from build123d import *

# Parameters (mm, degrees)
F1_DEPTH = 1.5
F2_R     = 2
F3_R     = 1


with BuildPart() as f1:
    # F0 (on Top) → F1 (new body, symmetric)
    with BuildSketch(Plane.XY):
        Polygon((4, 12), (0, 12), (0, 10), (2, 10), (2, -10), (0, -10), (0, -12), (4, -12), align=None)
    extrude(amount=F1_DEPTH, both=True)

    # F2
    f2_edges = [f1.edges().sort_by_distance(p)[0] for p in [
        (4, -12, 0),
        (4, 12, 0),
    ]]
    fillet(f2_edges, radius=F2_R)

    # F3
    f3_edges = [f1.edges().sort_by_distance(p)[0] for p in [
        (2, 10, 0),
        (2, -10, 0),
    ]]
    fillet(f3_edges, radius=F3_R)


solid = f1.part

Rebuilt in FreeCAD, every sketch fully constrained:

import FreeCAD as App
import Part
import Sketcher
from FreeCAD import Vector


def edges_at(feature, points):
    """Names of the edges that pass closest to the given points."""
    edges = feature.Shape.Edges
    near = lambda p: min(range(len(edges)), key=lambda i: edges[i].distToShape(Part.Vertex(*p))[0])
    return sorted({f"Edge{near(p) + 1}" for p in points})

doc = App.newDocument("Part")
body = doc.addObject("PartDesign::Body", "Body")

# Sketch on XY plane
sketch1 = body.newObject("Sketcher::SketchObject", "Sketch")
sketch1.AttachmentSupport = (doc.getObject("XY_Plane"), [""])
sketch1.MapMode = "FlatFace"
sketch1.addGeometry(Part.LineSegment(Vector(4, 12, 0), Vector(0, 12, 0)), False)
sketch1.addGeometry(Part.LineSegment(Vector(0, 12, 0), Vector(0, 10, 0)), False)
sketch1.addGeometry(Part.LineSegment(Vector(0, 10, 0), Vector(2, 10, 0)), False)
sketch1.addGeometry(Part.LineSegment(Vector(2, 10, 0), Vector(2, -10, 0)), False)
sketch1.addGeometry(Part.LineSegment(Vector(2, -10, 0), Vector(0, -10, 0)), False)
sketch1.addGeometry(Part.LineSegment(Vector(0, -10, 0), Vector(0, -12, 0)), False)
sketch1.addGeometry(Part.LineSegment(Vector(0, -12, 0), Vector(4, -12, 0)), False)
sketch1.addGeometry(Part.LineSegment(Vector(4, -12, 0), Vector(4, 12, 0)), False)
sketch1.addConstraint(Sketcher.Constraint("Coincident", 0, 2, 1, 1))
sketch1.addConstraint(Sketcher.Constraint("Coincident", 1, 2, 2, 1))
sketch1.addConstraint(Sketcher.Constraint("Coincident", 2, 2, 3, 1))
sketch1.addConstraint(Sketcher.Constraint("Coincident", 3, 2, 4, 1))
sketch1.addConstraint(Sketcher.Constraint("Coincident", 4, 2, 5, 1))
sketch1.addConstraint(Sketcher.Constraint("Coincident", 5, 2, 6, 1))
sketch1.addConstraint(Sketcher.Constraint("Coincident", 6, 2, 7, 1))
sketch1.addConstraint(Sketcher.Constraint("Coincident", 7, 2, 0, 1))
sketch1.addConstraint(Sketcher.Constraint("Horizontal", 0))
sketch1.addConstraint(Sketcher.Constraint("Vertical", 1))
sketch1.addConstraint(Sketcher.Constraint("Horizontal", 2))
sketch1.addConstraint(Sketcher.Constraint("Vertical", 3))
sketch1.addConstraint(Sketcher.Constraint("Horizontal", 4))
sketch1.addConstraint(Sketcher.Constraint("Vertical", 5))
sketch1.addConstraint(Sketcher.Constraint("Horizontal", 6))
sketch1.addConstraint(Sketcher.Constraint("Vertical", 7))
sketch1.addConstraint(Sketcher.Constraint("Symmetric", 1, 2, 4, 2, -1, 1))
sketch1.addConstraint(Sketcher.Constraint("Symmetric", 0, 2, 5, 2, -1))
sketch1.addConstraint(Sketcher.Constraint("Equal", 4, 1))
sketch1.addConstraint(Sketcher.Constraint("DistanceX", 0, 2, 0, 1, 4.0))
sketch1.addConstraint(Sketcher.Constraint("DistanceX", 2, 1, 2, 2, 2.0))
sketch1.addConstraint(Sketcher.Constraint("DistanceY", 3, 2, 3, 1, 20.0))
pad1 = body.newObject("PartDesign::Pad", "Pad")
pad1.Profile = sketch1
pad1.Length = 3
pad1.Midplane = True
doc.recompute()

fillet = body.newObject("PartDesign::Fillet", "Fillet")
fillet.Base = (pad1, edges_at(pad1, [(4, -12, 0), (4, 12, 0)]))
fillet.Radius = 2
doc.recompute()

fillet2 = body.newObject("PartDesign::Fillet", "Fillet001")
fillet2.Base = (fillet, edges_at(fillet, [(2, 10, 0), (2, -10, 0)]))
fillet2.Radius = 1

doc.recompute()
